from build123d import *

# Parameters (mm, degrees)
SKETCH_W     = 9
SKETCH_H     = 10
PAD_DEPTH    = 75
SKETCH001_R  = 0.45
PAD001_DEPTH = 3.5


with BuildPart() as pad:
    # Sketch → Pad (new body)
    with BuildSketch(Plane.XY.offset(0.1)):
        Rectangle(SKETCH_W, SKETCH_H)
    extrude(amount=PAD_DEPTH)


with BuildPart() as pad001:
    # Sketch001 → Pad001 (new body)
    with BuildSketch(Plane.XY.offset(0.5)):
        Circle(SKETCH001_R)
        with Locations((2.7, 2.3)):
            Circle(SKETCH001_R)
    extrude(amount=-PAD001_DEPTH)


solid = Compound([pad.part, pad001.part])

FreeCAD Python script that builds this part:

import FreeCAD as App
import Part
import Sketcher
Q = App.Units.Quantity


def add_polygon(sketch, points):
    """Adds a closed chain of lines whose ends are joined by coincident constraints."""
    first, n = sketch.GeometryCount, len(points)
    for a, b in zip(points, points[1:] + points[:1]):
        sketch.addGeometry(Part.LineSegment(App.Vector(*a, 0), App.Vector(*b, 0)), False)
    for i in range(n):
        sketch.addConstraint(Sketcher.Constraint("Coincident", first + i, 2, first + (i + 1) % n, 1))

doc = App.newDocument("Part")
body = doc.addObject("PartDesign::Body", "Body")

sketch1 = body.newObject("Sketcher::SketchObject", "Sketch")
sketch1.AttachmentSupport = (doc.getObject("XY_Plane"), [""])
sketch1.MapMode = "FlatFace"
sketch1.AttachmentOffset = App.Placement(App.Vector(0, 0, 0.1), App.Rotation())
add_polygon(sketch1, [(-4, 5), (-4, -5), (4, -5), (4, 5)])
sketch1.addConstraint([
    Sketcher.Constraint("Vertical", 0),
    Sketcher.Constraint("Horizontal", 1),
    Sketcher.Constraint("Vertical", 2),
    Sketcher.Constraint("Horizontal", 3),
    Sketcher.Constraint("Symmetric", 0, 2, 2, 2, -1, 1),
    Sketcher.Constraint("DistanceX", 1, 1, 1, 2, Q("9 mm")),
    Sketcher.Constraint("DistanceY", 0, 2, 0, 1, Q("10 mm")),
])
pad1 = body.newObject("PartDesign::Pad", "Pad")
pad1.Profile = sketch1
pad1.Length = 75
body2 = doc.addObject("PartDesign::Body", "Body001")
body2.AllowCompound = True

sketch2 = body2.newObject("Sketcher::SketchObject", "Sketch001")
sketch2.AttachmentSupport = (doc.getObject("XY_Plane001"), [""])
sketch2.MapMode = "FlatFace"
sketch2.AttachmentOffset = App.Placement(App.Vector(0, 0, 0.5), App.Rotation())
sketch2.addGeometry([
    Part.Circle(App.Vector(0, 0, 0), App.Vector(0, 0, 1), 0.45),
    Part.Circle(App.Vector(2.7, 2.3, 0), App.Vector(0, 0, 1), 0.45),
], False)
sketch2.addConstraint([
    Sketcher.Constraint("Coincident", 0, 3, -1, 1),
    Sketcher.Constraint("Equal", 0, 1),
    Sketcher.Constraint("Diameter", 0, Q("0.9 mm")),
    Sketcher.Constraint("DistanceX", -1, 1, 1, 3, Q("2.7 mm")),
    Sketcher.Constraint("DistanceY", -1, 1, 1, 3, Q("2.3 mm")),
])
pad2 = body2.newObject("PartDesign::Pad", "Pad001")
pad2.Profile = sketch2
pad2.Length = 3.5
pad2.Reversed = True

doc.recompute()
